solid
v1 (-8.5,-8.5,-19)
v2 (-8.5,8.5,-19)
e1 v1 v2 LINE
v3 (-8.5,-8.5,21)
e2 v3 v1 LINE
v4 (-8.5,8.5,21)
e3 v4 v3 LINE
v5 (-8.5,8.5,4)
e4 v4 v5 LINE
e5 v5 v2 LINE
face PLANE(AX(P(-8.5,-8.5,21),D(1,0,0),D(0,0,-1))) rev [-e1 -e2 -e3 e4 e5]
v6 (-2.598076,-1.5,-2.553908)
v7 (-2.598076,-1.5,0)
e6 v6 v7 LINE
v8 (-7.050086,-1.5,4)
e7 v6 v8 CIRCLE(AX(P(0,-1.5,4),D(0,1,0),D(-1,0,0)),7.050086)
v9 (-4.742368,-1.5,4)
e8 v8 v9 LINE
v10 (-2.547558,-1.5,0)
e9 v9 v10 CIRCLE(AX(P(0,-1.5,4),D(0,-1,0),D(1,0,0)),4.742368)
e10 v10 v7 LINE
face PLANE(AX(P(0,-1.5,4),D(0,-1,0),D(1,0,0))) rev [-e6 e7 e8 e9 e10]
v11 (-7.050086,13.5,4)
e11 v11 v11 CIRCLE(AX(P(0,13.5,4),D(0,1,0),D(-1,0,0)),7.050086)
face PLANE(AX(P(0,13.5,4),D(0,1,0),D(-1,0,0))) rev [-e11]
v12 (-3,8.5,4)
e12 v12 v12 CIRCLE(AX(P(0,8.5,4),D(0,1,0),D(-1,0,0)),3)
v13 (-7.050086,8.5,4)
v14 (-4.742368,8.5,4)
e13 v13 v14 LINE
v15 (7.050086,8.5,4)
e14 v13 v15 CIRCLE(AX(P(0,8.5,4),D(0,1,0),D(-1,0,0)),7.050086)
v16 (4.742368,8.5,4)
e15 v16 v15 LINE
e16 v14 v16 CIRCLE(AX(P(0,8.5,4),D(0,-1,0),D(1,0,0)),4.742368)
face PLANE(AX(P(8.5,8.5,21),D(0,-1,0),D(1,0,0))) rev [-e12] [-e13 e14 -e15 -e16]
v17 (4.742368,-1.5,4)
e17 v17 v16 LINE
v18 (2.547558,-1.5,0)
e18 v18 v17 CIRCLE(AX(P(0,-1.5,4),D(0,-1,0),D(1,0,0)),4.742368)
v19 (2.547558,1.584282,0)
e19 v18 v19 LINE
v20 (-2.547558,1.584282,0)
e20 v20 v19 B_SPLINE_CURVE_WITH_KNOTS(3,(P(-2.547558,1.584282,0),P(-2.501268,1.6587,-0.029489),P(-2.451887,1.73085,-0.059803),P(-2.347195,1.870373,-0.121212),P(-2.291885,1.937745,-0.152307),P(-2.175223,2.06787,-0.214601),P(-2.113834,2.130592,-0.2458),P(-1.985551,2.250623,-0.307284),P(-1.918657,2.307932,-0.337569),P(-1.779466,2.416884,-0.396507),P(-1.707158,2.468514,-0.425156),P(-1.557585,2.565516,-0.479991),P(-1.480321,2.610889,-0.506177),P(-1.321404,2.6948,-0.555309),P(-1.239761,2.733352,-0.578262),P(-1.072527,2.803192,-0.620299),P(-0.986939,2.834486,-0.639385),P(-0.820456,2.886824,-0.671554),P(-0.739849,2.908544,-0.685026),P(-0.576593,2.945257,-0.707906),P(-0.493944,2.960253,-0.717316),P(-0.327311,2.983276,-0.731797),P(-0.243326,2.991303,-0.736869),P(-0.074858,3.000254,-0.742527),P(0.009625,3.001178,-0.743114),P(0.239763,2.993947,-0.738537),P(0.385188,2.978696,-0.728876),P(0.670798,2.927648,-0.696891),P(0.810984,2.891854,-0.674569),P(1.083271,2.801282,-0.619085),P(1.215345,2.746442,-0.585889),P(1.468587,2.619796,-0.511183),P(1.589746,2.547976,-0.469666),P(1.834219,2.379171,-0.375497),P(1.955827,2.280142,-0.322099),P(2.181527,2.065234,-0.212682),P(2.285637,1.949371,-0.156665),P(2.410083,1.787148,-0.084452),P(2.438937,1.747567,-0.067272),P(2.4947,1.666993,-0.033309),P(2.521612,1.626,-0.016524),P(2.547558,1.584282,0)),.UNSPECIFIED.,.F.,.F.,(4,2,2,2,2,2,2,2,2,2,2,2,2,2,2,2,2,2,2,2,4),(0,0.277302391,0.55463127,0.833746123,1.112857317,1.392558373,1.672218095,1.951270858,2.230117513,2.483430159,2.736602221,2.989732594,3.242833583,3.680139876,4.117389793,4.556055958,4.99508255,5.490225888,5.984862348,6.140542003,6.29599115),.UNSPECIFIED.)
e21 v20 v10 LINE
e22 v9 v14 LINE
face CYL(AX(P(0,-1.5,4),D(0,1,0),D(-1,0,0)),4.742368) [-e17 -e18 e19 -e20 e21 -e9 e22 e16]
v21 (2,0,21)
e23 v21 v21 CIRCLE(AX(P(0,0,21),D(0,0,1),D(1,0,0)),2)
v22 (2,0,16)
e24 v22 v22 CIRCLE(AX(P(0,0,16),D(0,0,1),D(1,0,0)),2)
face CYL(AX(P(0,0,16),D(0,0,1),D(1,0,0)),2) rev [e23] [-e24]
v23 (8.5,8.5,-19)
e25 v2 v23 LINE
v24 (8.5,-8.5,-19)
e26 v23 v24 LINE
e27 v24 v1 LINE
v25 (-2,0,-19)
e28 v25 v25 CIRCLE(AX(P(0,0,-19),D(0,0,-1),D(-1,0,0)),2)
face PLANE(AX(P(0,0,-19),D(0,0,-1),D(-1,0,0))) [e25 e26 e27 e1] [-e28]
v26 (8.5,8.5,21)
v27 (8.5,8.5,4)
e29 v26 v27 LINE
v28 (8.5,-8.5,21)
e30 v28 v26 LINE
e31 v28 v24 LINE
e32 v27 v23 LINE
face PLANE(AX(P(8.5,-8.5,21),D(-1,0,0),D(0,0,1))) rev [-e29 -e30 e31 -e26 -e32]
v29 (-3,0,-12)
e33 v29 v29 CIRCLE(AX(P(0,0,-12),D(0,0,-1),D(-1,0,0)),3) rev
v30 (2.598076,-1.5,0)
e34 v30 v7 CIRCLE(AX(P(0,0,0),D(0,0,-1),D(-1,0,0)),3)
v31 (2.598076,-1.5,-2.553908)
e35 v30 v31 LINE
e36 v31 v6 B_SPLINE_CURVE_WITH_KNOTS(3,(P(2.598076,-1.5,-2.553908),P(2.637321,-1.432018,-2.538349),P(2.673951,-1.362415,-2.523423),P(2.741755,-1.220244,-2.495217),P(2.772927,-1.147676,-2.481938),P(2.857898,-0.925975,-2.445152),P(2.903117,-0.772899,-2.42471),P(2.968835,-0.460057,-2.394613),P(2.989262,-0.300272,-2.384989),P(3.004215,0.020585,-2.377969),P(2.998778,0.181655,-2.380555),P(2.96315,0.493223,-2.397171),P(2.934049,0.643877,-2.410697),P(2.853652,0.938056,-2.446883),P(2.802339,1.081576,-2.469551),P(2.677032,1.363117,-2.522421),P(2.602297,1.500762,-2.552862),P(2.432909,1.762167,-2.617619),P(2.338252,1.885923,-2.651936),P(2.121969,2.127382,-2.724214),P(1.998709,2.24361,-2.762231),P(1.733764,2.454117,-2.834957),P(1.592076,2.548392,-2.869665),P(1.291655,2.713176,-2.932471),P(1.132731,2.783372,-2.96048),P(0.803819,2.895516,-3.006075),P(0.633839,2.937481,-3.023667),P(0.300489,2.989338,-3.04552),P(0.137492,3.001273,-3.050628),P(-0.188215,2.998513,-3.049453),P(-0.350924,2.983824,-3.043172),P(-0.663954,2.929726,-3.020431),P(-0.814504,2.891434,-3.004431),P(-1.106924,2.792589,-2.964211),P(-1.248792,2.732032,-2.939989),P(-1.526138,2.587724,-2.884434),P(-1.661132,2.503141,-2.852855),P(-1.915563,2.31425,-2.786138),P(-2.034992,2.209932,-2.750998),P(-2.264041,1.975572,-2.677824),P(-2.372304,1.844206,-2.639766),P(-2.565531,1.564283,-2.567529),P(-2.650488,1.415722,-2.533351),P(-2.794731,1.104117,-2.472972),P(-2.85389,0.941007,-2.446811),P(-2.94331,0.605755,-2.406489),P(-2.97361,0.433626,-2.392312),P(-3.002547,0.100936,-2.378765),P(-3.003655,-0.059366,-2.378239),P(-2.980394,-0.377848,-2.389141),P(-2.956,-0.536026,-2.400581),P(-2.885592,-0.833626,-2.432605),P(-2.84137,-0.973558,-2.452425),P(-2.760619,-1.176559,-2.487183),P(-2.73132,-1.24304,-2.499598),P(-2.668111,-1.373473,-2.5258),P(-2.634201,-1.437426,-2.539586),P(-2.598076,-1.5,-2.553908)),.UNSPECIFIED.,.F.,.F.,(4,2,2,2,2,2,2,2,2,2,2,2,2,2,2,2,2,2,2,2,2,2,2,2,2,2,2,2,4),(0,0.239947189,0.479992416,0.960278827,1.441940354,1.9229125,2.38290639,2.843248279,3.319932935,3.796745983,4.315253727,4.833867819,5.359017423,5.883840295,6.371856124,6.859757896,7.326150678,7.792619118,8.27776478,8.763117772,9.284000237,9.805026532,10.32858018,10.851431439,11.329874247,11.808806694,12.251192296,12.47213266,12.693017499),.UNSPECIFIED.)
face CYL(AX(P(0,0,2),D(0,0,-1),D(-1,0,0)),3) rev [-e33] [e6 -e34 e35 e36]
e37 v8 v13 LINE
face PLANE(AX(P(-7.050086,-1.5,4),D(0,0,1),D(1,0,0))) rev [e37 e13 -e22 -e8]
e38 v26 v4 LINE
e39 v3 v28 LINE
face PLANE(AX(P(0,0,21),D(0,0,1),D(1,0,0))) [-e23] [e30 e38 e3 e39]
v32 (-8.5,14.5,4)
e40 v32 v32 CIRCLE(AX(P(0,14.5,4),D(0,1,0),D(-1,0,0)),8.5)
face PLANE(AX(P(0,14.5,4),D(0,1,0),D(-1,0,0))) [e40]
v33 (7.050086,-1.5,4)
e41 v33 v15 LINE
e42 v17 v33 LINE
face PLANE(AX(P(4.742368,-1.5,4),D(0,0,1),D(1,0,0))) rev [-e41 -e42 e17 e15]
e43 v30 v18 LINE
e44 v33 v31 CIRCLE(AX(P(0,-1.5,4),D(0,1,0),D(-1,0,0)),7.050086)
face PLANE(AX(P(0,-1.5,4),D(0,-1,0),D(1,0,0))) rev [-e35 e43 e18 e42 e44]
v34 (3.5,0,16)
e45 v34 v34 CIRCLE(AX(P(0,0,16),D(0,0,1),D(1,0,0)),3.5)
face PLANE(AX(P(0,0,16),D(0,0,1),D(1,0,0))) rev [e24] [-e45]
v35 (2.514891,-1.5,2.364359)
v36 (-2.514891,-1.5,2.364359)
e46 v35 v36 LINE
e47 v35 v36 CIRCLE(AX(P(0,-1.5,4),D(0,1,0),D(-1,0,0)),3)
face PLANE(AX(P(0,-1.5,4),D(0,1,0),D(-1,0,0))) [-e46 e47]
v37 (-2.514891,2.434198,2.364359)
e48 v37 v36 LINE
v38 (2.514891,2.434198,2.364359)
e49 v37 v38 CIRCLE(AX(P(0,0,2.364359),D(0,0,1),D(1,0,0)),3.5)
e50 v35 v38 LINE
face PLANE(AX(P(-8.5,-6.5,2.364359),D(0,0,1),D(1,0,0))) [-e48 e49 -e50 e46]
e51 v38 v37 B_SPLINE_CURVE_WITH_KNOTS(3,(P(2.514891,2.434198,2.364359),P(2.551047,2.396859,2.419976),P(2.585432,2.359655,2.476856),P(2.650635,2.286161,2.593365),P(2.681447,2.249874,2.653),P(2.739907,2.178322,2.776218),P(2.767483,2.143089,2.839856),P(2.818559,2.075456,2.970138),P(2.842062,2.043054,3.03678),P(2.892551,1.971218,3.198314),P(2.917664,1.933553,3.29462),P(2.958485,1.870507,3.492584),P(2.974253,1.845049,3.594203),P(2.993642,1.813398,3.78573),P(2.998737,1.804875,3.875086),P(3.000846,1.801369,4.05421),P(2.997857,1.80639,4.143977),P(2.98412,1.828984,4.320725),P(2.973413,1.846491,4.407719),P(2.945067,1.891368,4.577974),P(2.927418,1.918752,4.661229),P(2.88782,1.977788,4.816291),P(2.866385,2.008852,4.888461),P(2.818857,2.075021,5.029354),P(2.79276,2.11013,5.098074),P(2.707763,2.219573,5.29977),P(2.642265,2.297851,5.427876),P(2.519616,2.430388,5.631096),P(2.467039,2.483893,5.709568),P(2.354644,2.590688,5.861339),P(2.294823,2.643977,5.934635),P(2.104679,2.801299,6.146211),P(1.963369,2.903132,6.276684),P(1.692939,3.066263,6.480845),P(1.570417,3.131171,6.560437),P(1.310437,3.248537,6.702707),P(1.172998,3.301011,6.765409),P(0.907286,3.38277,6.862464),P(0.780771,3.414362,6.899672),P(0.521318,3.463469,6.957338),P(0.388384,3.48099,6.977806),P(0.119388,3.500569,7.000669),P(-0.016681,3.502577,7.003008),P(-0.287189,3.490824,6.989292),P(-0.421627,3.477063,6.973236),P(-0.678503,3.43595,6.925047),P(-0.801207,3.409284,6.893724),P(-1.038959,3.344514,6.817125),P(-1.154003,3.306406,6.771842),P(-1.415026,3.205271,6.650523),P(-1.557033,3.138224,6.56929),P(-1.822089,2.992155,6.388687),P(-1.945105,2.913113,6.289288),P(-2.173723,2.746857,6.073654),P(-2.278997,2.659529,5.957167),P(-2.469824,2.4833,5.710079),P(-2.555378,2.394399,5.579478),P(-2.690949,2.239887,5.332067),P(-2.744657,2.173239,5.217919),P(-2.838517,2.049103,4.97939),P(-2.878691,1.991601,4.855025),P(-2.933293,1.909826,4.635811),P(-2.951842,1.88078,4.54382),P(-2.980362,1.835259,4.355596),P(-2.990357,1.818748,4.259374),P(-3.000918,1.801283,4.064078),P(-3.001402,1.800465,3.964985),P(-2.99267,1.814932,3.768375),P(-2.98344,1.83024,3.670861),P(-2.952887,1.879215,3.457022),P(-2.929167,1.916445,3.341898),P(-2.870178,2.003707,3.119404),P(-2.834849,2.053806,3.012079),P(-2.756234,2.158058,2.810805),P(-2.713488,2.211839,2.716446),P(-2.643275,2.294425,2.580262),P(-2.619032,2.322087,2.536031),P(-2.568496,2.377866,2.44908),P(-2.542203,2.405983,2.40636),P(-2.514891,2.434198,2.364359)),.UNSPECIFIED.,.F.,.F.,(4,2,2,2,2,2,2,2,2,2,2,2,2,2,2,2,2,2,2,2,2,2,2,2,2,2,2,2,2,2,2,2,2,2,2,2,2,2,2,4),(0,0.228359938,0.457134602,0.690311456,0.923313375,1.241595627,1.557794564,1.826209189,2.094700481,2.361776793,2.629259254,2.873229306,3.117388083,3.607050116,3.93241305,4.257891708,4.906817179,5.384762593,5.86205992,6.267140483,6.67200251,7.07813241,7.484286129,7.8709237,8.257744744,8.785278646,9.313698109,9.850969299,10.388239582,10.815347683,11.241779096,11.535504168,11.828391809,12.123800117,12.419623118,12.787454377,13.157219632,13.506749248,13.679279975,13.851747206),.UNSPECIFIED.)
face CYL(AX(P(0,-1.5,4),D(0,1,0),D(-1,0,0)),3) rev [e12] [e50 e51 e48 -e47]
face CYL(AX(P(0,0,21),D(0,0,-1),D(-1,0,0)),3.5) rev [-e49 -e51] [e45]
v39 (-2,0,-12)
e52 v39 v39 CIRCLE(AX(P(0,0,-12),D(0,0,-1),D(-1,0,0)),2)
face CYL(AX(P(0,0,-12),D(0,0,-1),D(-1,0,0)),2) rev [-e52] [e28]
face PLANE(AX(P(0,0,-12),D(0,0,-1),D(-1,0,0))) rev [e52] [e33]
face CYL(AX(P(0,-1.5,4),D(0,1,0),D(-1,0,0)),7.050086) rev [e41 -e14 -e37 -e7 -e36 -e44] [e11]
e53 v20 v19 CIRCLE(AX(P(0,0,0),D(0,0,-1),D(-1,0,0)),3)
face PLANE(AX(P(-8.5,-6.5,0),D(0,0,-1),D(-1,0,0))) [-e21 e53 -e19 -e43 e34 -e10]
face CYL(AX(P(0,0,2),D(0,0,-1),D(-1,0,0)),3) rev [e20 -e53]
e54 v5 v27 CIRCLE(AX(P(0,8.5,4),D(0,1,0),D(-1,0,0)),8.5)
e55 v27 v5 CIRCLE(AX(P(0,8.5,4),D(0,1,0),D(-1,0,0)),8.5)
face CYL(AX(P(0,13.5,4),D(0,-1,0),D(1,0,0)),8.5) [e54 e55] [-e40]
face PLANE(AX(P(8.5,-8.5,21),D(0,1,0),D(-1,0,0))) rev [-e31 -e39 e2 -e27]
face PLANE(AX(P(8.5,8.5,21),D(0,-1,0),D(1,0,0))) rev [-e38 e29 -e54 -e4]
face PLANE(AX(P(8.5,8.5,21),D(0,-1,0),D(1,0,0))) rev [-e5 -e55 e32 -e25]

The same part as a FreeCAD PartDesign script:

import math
import FreeCAD as App
import Part
import Sketcher
from FreeCAD import Vector


def add_polygon(sketch, points):
    """Adds a closed chain of lines whose ends are joined by coincident constraints."""
    first, n = sketch.GeometryCount, len(points)
    for a, b in zip(points, points[1:] + points[:1]):
        sketch.addGeometry(Part.LineSegment(App.Vector(*a, 0), App.Vector(*b, 0)), False)
    for i in range(n):
        sketch.addConstraint(Sketcher.Constraint("Coincident", first + i, 2, first + (i + 1) % n, 1))

doc = App.newDocument("Part")
body = doc.addObject("PartDesign::Body", "Body")

sketch1 = doc.addObject("Sketcher::SketchObject", "Sketch")
body.addObject(sketch1)
sketch1.AttachmentSupport = (doc.XY_Plane, [""])
sketch1.MapMode = "FlatFace"
add_polygon(sketch1, [(-8.5, 8.5), (-8.5, -8.5), (8.5, -8.5), (8.5, 8.5)])
sketch1.addGeometry(Part.Circle(Vector(0, 0, 0), Vector(0, 0, 1), 3.5), False)
sketch1.addConstraint([
    Sketcher.Constraint("Vertical", 0),
    Sketcher.Constraint("Horizontal", 1),
    Sketcher.Constraint("Vertical", 2),
    Sketcher.Constraint("Horizontal", 3),
    Sketcher.Constraint("Coincident", 4, 3, -1, 1),
    Sketcher.Constraint("Symmetric", 0, 2, 2, 2, -1, 1),
    Sketcher.Constraint("Equal", 3, 0),
    Sketcher.Constraint("Diameter", 4, 7.0),
    Sketcher.Constraint("DistanceX", 1, 1, 1, 2, 17.0),
])
pad1 = doc.addObject("PartDesign::Pad", "Pad")
body.addObject(pad1)
pad1.Profile = sketch1
pad1.Length = 21

sketch2 = doc.addObject("Sketcher::SketchObject", "Sketch001")
body.addObject(sketch2)
sketch2.AttachmentSupport = (doc.XY_Plane, [""])
sketch2.MapMode = "FlatFace"
add_polygon(sketch2, [(8.5, 8.5), (8.5, -8.5), (-8.5, -8.5), (-8.5, 8.5)])
sketch2.addConstraint([
    Sketcher.Constraint("Vertical", 0),
    Sketcher.Constraint("Horizontal", 1),
    Sketcher.Constraint("Vertical", 2),
    Sketcher.Constraint("Horizontal", 3),
    Sketcher.Constraint("Symmetric", 0, 2, 2, 2, -1, 1),
    Sketcher.Constraint("Equal", 3, 0),
    Sketcher.Constraint("DistanceX", 1, 2, 1, 1, 17.0),
])
pad2 = doc.addObject("PartDesign::Pad", "Pad001")
body.addObject(pad2)
pad2.Profile = sketch2
pad2.Length = 19
pad2.Reversed = True

sketch3 = doc.addObject("Sketcher::SketchObject", "Sketch002")
body.addObject(sketch3)
sketch3.AttachmentSupport = (doc.XY_Plane, [""])
sketch3.MapMode = "FlatFace"
sketch3.AttachmentOffset = App.Placement(Vector(0, 0, -19), App.Rotation())
sketch3.addGeometry(Part.Circle(Vector(0, 0, 0), Vector(0, 0, 1), 3), False)
sketch3.addConstraint([
    Sketcher.Constraint("Coincident", 0, 3, -1, 1),
    Sketcher.Constraint("Diameter", 0, 6.0),
])
pocket1 = doc.addObject("PartDesign::Pocket", "Pocket")
body.addObject(pocket1)
pocket1.Profile = sketch3
pocket1.Length = 21
pocket1.Reversed = True

sketch4 = doc.addObject("Sketcher::SketchObject", "Sketch003")
body.addObject(sketch4)
sketch4.AttachmentSupport = (doc.XZ_Plane, [""])
sketch4.MapMode = "FlatFace"
sketch4.AttachmentOffset = App.Placement(Vector(0, 0, -8.5), App.Rotation())
add_polygon(sketch4, [(-8.5, 0), (-8.5, 2.364359), (8.5, 2.364359), (8.5, 0)])
sketch4.addConstraint([
    Sketcher.Constraint("Vertical", 0),
    Sketcher.Constraint("Horizontal", 1),
    Sketcher.Constraint("Vertical", 2),
    Sketcher.Constraint("Horizontal", 3),
    Sketcher.Constraint("Symmetric", 2, 2, 3, 2, -1, 1),
    Sketcher.Constraint("DistanceX", 1, 1, 1, 2, 17.0),
    Sketcher.Constraint("DistanceY", 0, 1, 0, 2, 2.364359),
])
pad3 = doc.addObject("PartDesign::Pad", "Pad002")
body.addObject(pad3)
pad3.Profile = sketch4
pad3.Length = 15

sketch5 = doc.addObject("Sketcher::SketchObject", "Sketch004")
body.addObject(sketch5)
sketch5.AttachmentSupport = (doc.XZ_Plane, [""])
sketch5.MapMode = "FlatFace"
sketch5.AttachmentOffset = App.Placement(Vector(0, 0, -8.5), App.Rotation())
sketch5.addGeometry([
    Part.LineSegment(Vector(-7.050086, 4, 0), Vector(-4.742368, 4, 0)),
    Part.ArcOfCircle(Part.Circle(Vector(0, 4, 0), Vector(0, 0, 1), 4.742368), math.radians(180), math.radians(360)),
    Part.LineSegment(Vector(4.742368, 4, 0), Vector(7.050086, 4, 0)),
    Part.ArcOfCircle(Part.Circle(Vector(0, 4, 0), Vector(0, 0, 1), 7.050086), math.radians(180), math.radians(360)),
], False)
sketch5.addConstraint([
    Sketcher.Constraint("Coincident", 0, 2, 1, 1),
    Sketcher.Constraint("Coincident", 1, 2, 2, 1),
    Sketcher.Constraint("Coincident", 2, 2, 3, 2),
    Sketcher.Constraint("Coincident", 3, 1, 0, 1),
    Sketcher.Constraint("Horizontal", 0),
    Sketcher.Constraint("Horizontal", 2),
    Sketcher.Constraint("Coincident", 3, 3, 1, 3),
    Sketcher.Constraint("Symmetric", 0, 2, 1, 2, -2),
    Sketcher.Constraint("Horizontal", 3, 3, 0, 2),
    Sketcher.Constraint("DistanceY", -1, 1, 1, 3, 4.0),
    Sketcher.Constraint("Radius", 1, 4.742368),
    Sketcher.Constraint("Radius", 3, 7.050086),
])
pocket2 = doc.addObject("PartDesign::Pocket", "Pocket001")
body.addObject(pocket2)
pocket2.Profile = sketch5
pocket2.Length = 10
pocket2.Reversed = True

sketch6 = doc.addObject("Sketcher::SketchObject", "Sketch005")
body.addObject(sketch6)
sketch6.AttachmentSupport = (doc.XZ_Plane, [""])
sketch6.MapMode = "FlatFace"
sketch6.AttachmentOffset = App.Placement(Vector(0, 0, -8.5), App.Rotation())
sketch6.addGeometry(Part.Circle(Vector(0, 4, 0), Vector(0, 0, 1), 3), False)
sketch6.addConstraint([
    Sketcher.Constraint("PointOnObject", 0, 3, -2),
    Sketcher.Constraint("Diameter", 0, 6.0),
    Sketcher.Constraint("DistanceY", -1, 1, 0, 3, 4.0),
])
pocket3 = doc.addObject("PartDesign::Pocket", "Pocket002")
body.addObject(pocket3)
pocket3.Profile = sketch6
pocket3.Length = 10
pocket3.Reversed = True

sketch7 = doc.addObject("Sketcher::SketchObject", "Sketch006")
body.addObject(sketch7)
sketch7.AttachmentSupport = (doc.XZ_Plane, [""])
sketch7.MapMode = "FlatFace"
sketch7.AttachmentOffset = App.Placement(Vector(0, 0, -13.5), App.Rotation())
sketch7.addGeometry([
    Part.Circle(Vector(0, 4, 0), Vector(0, 0, 1), 8.5),
    Part.ArcOfCircle(Part.Circle(Vector(0, 4, 0), Vector(0, 0, 1), 7.050086), math.radians(0), math.radians(180)),
    Part.ArcOfCircle(Part.Circle(Vector(0, 4, 0), Vector(0, 0, 1), 7.050086), math.radians(180), math.radians(360)),
], False)
sketch7.addConstraint([
    Sketcher.Constraint("Tangent", 1, 1, 2, 2),
    Sketcher.Constraint("Coincident", 2, 1, 1, 2),
    Sketcher.Constraint("Coincident", 1, 3, 0, 3),
    Sketcher.Constraint("Symmetric", 1, 1, 2, 1, -2),
    Sketcher.Constraint("Horizontal", 2, 3, 1, 1),
    Sketcher.Constraint("Diameter", 0, 17.0),
    Sketcher.Constraint("DistanceY", -1, 1, 0, 3, 4.0),
    Sketcher.Constraint("Radius", 1, 7.050086),
])
pad4 = doc.addObject("PartDesign::Pad", "Pad003")
body.addObject(pad4)
pad4.Profile = sketch7
pad4.Length = 5

sketch8 = doc.addObject("Sketcher::SketchObject", "Sketch007")
body.addObject(sketch8)
sketch8.AttachmentSupport = (doc.XZ_Plane, [""])
sketch8.MapMode = "FlatFace"
sketch8.AttachmentOffset = App.Placement(Vector(0, 0, -14.5), App.Rotation())
sketch8.addGeometry(Part.Circle(Vector(0, 4, 0), Vector(0, 0, 1), 8.5), False)
sketch8.addConstraint([
    Sketcher.Constraint("PointOnObject", 0, 3, -2),
    Sketcher.Constraint("Diameter", 0, 17.0),
    Sketcher.Constraint("DistanceY", -1, 1, 0, 3, 4.0),
])
pad5 = doc.addObject("PartDesign::Pad", "Pad004")
body.addObject(pad5)
pad5.Profile = sketch8
pad5.Length = 1

sketch9 = doc.addObject("Sketcher::SketchObject", "Sketch008")
body.addObject(sketch9)
sketch9.AttachmentSupport = (doc.XY_Plane, [""])
sketch9.MapMode = "FlatFace"
sketch9.AttachmentOffset = App.Placement(Vector(0, 0, 21), App.Rotation())
sketch9.addGeometry([
    Part.Circle(Vector(0, 0, 0), Vector(0, 0, 1), 5.51256),
    Part.Circle(Vector(0, 0, 0), Vector(0, 0, 1), 2),
], False)
sketch9.addConstraint([
    Sketcher.Constraint("Coincident", 0, 3, -1, 1),
    Sketcher.Constraint("Coincident", 1, 3, -1, 1),
    Sketcher.Constraint("Diameter", 1, 4.0),
    Sketcher.Constraint("Diameter", 0, 11.02512),
])
pad6 = doc.addObject("PartDesign::Pad", "Pad005")
body.addObject(pad6)
pad6.Profile = sketch9
pad6.Length = 5
pad6.Reversed = True

sketch10 = doc.addObject("Sketcher::SketchObject", "Sketch009")
body.addObject(sketch10)
sketch10.AttachmentSupport = (doc.XY_Plane, [""])
sketch10.MapMode = "FlatFace"
sketch10.AttachmentOffset = App.Placement(Vector(0, 0, -12), App.Rotation())
sketch10.addGeometry([
    Part.Circle(Vector(0, 0, 0), Vector(0, 0, 1), 4.074487),
    Part.Circle(Vector(0, 0, 0), Vector(0, 0, 1), 2),
], False)
sketch10.addConstraint([
    Sketcher.Constraint("Coincident", 0, 3, -1, 1),
    Sketcher.Constraint("Coincident", 1, 3, -1, 1),
    Sketcher.Constraint("Diameter", 1, 4.0),
    Sketcher.Constraint("Diameter", 0, 8.148974),
])
pad7 = doc.addObject("PartDesign::Pad", "Pad006")
body.addObject(pad7)
pad7.Profile = sketch10
pad7.Length = 7
pad7.Reversed = True

doc.recompute()
